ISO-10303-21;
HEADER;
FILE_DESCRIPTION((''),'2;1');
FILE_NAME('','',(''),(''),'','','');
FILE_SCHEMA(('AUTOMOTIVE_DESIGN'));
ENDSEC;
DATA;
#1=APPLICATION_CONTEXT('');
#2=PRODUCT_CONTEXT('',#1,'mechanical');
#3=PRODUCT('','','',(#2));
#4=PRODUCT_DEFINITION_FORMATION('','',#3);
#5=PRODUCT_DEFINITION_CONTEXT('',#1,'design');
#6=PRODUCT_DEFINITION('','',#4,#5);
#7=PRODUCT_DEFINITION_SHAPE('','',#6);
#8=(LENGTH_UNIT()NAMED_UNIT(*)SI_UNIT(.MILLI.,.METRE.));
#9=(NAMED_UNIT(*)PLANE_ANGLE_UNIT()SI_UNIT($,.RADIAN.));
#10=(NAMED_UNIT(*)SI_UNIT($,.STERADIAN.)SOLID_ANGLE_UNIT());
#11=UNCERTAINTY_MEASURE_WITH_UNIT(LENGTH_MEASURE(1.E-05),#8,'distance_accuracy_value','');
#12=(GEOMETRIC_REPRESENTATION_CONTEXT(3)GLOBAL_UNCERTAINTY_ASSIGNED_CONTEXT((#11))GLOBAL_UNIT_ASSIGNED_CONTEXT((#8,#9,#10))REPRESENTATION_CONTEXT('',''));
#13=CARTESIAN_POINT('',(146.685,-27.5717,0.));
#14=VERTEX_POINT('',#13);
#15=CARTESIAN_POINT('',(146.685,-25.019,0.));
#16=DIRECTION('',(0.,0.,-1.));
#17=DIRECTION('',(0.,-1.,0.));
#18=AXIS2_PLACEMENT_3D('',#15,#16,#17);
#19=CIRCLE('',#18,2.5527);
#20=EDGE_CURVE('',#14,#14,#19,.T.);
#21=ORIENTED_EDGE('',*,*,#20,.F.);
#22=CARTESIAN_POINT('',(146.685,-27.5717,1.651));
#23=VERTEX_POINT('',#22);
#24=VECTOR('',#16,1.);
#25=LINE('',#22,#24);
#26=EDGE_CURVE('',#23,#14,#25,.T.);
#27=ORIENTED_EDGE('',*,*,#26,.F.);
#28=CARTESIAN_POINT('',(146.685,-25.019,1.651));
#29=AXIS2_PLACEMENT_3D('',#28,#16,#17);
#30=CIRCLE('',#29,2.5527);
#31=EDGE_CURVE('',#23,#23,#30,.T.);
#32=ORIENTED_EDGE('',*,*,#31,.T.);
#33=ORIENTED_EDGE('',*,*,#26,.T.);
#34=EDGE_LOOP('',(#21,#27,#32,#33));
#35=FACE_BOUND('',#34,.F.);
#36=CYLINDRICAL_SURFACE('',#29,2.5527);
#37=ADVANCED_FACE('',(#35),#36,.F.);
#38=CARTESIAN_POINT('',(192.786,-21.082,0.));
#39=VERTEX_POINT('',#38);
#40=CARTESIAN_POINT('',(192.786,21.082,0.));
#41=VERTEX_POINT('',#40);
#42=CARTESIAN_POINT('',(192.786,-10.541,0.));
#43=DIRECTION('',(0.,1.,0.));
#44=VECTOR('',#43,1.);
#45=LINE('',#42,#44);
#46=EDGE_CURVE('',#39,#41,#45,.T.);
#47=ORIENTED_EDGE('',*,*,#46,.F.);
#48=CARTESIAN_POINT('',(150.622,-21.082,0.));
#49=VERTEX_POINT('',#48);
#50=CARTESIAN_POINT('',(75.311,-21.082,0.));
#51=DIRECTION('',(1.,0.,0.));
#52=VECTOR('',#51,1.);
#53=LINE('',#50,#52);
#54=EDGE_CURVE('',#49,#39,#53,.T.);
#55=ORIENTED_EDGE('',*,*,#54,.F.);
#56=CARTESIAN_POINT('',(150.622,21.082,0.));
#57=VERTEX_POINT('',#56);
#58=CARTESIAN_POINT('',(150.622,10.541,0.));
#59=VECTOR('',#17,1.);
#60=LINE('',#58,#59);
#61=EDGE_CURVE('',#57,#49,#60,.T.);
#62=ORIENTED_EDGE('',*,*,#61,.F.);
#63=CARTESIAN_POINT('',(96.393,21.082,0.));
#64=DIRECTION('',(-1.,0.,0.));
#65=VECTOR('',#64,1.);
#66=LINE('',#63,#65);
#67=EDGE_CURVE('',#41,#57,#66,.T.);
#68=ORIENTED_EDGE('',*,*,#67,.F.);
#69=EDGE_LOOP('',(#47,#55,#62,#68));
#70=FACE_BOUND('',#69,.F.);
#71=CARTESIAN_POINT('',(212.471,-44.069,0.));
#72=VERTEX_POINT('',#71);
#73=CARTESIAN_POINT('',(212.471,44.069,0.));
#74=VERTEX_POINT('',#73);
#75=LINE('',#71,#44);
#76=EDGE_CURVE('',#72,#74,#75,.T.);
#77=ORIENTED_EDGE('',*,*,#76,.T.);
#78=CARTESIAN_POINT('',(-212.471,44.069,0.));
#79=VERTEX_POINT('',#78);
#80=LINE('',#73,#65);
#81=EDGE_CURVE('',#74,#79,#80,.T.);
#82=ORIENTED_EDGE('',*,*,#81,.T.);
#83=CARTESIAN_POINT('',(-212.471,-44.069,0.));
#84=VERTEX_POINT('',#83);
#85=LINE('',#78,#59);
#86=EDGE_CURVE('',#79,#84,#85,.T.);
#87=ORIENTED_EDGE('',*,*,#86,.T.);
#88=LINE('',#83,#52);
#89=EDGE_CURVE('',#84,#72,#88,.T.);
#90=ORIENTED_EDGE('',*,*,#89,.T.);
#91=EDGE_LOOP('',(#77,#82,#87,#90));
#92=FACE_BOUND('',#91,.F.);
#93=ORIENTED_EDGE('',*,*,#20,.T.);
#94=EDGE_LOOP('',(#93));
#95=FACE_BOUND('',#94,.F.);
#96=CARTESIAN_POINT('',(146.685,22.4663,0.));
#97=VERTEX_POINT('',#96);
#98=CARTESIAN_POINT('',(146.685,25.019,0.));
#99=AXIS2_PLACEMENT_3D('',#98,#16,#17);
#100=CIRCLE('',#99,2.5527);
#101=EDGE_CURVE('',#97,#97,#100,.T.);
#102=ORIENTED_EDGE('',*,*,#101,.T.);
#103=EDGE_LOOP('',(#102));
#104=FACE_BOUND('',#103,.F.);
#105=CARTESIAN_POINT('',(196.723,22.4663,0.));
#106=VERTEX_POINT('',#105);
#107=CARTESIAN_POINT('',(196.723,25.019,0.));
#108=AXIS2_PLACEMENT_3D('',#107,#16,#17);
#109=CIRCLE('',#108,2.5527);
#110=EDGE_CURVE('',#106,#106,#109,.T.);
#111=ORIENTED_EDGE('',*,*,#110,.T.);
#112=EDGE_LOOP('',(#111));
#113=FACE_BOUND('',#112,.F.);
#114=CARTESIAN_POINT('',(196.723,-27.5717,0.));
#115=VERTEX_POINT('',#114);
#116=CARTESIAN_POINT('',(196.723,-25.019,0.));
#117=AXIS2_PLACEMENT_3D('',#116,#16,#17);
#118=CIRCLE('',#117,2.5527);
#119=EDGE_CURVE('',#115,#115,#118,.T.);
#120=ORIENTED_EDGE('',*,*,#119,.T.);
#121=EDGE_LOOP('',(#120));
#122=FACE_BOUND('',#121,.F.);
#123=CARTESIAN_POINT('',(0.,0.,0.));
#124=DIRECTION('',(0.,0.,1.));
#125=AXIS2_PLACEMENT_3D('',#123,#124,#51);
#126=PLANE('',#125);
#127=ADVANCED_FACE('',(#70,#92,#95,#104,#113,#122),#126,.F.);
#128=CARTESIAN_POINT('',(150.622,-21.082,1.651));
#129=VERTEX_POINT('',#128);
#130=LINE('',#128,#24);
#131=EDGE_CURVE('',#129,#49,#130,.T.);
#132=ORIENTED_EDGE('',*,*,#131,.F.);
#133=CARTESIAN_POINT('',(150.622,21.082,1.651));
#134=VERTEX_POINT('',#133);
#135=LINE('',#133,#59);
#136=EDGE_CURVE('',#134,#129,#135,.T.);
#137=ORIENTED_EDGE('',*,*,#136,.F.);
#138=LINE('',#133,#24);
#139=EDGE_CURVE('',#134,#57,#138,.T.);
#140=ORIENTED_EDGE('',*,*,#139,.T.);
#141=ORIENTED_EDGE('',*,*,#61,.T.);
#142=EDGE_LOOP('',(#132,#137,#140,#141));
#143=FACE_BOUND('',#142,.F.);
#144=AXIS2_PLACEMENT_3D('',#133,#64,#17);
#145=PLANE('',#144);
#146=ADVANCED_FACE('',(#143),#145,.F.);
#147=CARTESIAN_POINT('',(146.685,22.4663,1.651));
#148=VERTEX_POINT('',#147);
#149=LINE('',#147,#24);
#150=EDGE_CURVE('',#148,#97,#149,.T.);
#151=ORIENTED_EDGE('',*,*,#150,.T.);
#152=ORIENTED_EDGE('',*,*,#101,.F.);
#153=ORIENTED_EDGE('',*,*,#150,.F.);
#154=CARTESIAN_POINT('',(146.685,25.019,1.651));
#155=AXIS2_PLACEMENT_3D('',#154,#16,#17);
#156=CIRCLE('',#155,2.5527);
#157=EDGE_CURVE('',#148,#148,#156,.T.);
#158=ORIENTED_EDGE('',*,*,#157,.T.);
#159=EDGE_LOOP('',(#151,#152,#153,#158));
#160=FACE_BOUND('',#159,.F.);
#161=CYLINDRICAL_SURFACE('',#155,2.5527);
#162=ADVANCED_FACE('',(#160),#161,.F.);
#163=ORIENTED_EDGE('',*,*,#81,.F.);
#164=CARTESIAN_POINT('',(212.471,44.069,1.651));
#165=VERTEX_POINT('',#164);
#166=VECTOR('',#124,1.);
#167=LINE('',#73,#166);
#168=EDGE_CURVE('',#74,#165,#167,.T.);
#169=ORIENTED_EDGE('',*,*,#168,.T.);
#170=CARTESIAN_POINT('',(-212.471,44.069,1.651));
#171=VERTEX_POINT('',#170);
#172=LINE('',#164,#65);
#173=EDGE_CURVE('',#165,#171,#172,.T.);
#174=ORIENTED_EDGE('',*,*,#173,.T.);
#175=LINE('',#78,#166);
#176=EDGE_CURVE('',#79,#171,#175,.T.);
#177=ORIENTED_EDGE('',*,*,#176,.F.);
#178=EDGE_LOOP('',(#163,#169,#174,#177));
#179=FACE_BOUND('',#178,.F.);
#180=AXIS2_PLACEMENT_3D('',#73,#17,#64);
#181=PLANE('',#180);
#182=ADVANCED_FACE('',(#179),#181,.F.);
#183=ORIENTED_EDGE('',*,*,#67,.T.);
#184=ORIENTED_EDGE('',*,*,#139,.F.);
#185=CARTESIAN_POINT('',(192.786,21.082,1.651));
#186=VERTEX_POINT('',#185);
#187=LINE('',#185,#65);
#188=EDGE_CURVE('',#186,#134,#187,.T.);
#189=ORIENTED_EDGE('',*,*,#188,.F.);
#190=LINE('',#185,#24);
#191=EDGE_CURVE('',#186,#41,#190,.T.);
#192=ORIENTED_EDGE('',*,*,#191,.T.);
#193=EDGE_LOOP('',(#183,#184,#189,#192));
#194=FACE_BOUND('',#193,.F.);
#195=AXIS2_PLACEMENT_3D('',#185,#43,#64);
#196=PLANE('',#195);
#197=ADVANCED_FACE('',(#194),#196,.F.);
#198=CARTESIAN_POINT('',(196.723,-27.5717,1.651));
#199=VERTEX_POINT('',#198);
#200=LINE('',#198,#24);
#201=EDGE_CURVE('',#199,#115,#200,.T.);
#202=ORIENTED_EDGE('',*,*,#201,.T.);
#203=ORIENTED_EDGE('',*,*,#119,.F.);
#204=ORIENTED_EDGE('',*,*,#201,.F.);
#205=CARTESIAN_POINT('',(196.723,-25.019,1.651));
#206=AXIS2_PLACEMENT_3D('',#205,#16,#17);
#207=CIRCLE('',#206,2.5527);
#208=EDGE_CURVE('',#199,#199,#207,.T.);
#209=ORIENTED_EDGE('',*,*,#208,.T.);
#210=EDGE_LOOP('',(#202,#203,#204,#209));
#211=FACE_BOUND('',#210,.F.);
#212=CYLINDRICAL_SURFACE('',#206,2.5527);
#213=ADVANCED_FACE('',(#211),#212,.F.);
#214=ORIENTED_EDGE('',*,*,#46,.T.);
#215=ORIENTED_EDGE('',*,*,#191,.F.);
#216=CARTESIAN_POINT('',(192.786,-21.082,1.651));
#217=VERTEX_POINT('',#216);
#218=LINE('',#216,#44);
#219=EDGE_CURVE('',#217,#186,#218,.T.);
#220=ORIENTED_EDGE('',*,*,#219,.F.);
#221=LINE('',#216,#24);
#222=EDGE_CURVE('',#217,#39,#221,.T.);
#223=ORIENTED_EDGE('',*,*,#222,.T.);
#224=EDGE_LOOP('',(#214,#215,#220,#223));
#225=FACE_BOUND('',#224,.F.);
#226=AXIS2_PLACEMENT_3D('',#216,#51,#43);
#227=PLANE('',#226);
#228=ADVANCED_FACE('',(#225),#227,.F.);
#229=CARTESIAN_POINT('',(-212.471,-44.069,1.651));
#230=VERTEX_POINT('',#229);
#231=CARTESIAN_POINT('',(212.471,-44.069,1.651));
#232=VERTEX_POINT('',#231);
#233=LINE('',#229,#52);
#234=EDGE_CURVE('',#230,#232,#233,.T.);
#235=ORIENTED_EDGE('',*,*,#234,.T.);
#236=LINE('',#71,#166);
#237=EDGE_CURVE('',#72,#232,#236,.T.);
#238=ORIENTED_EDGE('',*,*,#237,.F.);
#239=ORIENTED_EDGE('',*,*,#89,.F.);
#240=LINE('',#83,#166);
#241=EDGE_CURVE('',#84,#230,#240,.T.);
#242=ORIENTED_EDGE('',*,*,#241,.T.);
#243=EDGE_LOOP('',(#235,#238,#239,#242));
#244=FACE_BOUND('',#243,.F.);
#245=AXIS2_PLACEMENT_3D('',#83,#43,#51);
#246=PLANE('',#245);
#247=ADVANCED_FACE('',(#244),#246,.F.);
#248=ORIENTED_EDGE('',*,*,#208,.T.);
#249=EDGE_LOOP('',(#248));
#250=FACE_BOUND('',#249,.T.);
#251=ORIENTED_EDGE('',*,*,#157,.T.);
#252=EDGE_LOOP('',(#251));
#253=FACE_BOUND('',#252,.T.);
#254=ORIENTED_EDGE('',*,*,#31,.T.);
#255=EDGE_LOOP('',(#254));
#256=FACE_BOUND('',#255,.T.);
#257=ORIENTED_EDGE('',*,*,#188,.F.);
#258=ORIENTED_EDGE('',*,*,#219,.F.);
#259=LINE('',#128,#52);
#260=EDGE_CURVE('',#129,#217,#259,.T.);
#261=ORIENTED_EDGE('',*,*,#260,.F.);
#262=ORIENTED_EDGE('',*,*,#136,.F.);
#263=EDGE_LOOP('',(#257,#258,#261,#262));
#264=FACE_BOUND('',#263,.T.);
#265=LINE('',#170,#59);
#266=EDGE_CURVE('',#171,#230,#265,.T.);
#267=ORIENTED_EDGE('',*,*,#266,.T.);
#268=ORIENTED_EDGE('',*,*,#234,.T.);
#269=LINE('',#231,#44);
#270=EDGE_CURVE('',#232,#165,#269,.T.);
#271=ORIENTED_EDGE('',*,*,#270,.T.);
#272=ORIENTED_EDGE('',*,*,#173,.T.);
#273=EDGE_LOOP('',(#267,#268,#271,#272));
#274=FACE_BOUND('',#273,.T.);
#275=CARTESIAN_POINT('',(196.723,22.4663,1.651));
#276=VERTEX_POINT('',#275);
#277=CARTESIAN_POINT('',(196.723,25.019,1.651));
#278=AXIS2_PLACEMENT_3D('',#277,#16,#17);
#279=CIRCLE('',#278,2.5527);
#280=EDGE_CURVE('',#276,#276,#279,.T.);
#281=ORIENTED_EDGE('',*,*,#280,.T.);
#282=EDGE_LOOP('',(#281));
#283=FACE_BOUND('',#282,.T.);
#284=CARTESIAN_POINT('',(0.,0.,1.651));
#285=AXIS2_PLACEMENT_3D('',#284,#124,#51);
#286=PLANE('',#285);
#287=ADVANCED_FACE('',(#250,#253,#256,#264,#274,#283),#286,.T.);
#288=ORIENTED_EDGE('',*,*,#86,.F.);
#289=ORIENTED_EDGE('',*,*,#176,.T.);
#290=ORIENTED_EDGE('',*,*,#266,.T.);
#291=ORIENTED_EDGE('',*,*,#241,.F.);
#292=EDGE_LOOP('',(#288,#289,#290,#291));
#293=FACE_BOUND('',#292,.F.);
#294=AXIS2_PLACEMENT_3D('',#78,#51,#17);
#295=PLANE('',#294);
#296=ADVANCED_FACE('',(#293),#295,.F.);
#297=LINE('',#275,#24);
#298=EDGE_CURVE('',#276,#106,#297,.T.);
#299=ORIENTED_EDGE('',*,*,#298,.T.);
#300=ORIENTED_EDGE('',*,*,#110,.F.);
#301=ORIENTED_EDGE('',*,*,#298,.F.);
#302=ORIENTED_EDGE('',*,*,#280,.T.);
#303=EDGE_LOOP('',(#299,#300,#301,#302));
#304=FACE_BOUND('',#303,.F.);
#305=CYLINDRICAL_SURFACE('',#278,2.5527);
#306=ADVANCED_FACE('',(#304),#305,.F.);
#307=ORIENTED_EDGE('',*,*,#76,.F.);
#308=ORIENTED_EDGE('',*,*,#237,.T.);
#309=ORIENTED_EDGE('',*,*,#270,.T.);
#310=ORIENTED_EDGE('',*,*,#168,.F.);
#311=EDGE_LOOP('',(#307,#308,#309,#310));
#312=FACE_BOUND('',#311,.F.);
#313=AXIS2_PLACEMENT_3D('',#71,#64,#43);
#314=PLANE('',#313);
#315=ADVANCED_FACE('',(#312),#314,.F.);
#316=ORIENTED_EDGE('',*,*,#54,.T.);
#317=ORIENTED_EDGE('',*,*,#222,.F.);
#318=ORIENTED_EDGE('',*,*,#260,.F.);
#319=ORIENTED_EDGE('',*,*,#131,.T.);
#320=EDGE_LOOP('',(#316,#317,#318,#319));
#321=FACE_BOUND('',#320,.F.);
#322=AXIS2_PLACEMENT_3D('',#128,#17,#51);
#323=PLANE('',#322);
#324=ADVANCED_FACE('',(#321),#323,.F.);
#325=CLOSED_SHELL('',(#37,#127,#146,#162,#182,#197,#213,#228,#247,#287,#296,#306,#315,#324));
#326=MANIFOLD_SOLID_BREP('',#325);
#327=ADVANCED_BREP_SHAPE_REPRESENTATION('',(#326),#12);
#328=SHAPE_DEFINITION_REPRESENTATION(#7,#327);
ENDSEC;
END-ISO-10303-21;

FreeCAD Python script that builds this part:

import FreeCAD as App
import Part
import Sketcher
from FreeCAD import Vector
Q = App.Units.Quantity


def add_polygon(sketch, points):
    """Adds a closed chain of lines whose ends are joined by coincident constraints."""
    first, n = sketch.GeometryCount, len(points)
    for a, b in zip(points, points[1:] + points[:1]):
        sketch.addGeometry(Part.LineSegment(App.Vector(*a, 0), App.Vector(*b, 0)), False)
    for i in range(n):
        sketch.addConstraint(Sketcher.Constraint("Coincident", first + i, 2, first + (i + 1) % n, 1))

doc = App.newDocument("Part")
body = doc.addObject("PartDesign::Body", "Body")

# Sketch on XY plane
sketch1 = body.newObject("Sketcher::SketchObject", "Sketch")
sketch1.AttachmentSupport = (doc.getObject("XY_Plane"), [""])
sketch1.MapMode = "FlatFace"
add_polygon(sketch1, [(-212, 44), (-212, -44), (212, -44), (212, 44)])  # lines 0-3
sketch1.addConstraint([
    Sketcher.Constraint("Vertical", 0),
    Sketcher.Constraint("Horizontal", 1),
    Sketcher.Constraint("Vertical", 2),
    Sketcher.Constraint("Horizontal", 3),
    Sketcher.Constraint("Symmetric", 0, 2, 2, 2, -1, 1),
    Sketcher.Constraint("DistanceX", 1, 1, 1, 2, Q("16.73 in")),
    Sketcher.Constraint("DistanceY", 0, 2, 0, 1, Q("3.47 in")),
])
pad1 = body.newObject("PartDesign::Pad", "Pad")
pad1.Profile = sketch1
pad1.Length = Q("0.065 in")

# Sketch on XY plane
sketch2 = body.newObject("Sketcher::SketchObject", "Sketch001")
sketch2.AttachmentSupport = (doc.getObject("XY_Plane"), [""])
sketch2.MapMode = "FlatFace"
sketch2.AttachmentOffset = App.Placement(Vector(0, 0, 0.065 * 25.4), App.Rotation())
sketch2.addGeometry([
    Part.Circle(Vector(196.7, 25, 0), Vector(0, 0, 1), 2.6),
    Part.Circle(Vector(146.7, 25, 0), Vector(0, 0, 1), 2.6),
    Part.Circle(Vector(196.7, -25, 0), Vector(0, 0, 1), 2.6),
    Part.Circle(Vector(146.7, -25, 0), Vector(0, 0, 1), 2.6),
], False)
sketch2.addConstraint([
    Sketcher.Constraint("Equal", 0, 1),
    Sketcher.Constraint("Equal", 1, 2),
    Sketcher.Constraint("Equal", 2, 3),
    Sketcher.Constraint("Symmetric", 0, 3, 2, 3, -1),
    Sketcher.Constraint("Symmetric", 1, 3, 3, 3, -1),
    Sketcher.Constraint("Horizontal", 0, 3, 1, 3),
    Sketcher.Constraint("Diameter", 0, Q("0.201 in")),
    Sketcher.Constraint("DistanceX", 1, 3, 0, 3, Q("1.97 in")),
    Sketcher.Constraint("DistanceY", 2, 3, 0, 3, Q("1.97 in")),
    Sketcher.Constraint("DistanceX", -1, 1, 0, 3, Q("7.745 in")),
])
doc.recompute()
hole = body.newObject("PartDesign::Hole", "Hole")
hole.Profile = sketch2
hole.ThreadType = "None"
hole.Diameter = Q("0.201 in")
hole.DepthType = "ThroughAll"

# Sketch on XY plane
sketch3 = body.newObject("Sketcher::SketchObject", "Sketch002")
sketch3.AttachmentSupport = (doc.getObject("XY_Plane"), [""])
sketch3.MapMode = "FlatFace"
sketch3.AttachmentOffset = App.Placement(Vector(0, 0, 0.065 * 25.4), App.Rotation())
add_polygon(sketch3, [(151, 21), (151, -21), (193, -21), (193, 21)])  # lines 0-3
sketch3.addConstraint([
    Sketcher.Constraint("Vertical", 0),
    Sketcher.Constraint("Horizontal", 1),
    Sketcher.Constraint("Vertical", 2),
    Sketcher.Constraint("Horizontal", 3),
    Sketcher.Constraint("Equal", 3, 0),
    Sketcher.Constraint("DistanceX", 1, 1, 1, 2, Q("1.66 in")),
    Sketcher.Constraint("DistanceX", -1, 1, 0, 2, Q("5.93 in")),
    Sketcher.Constraint("DistanceY", 0, 2, -1, 1, Q("0.83 in")),
])
pocket1 = body.newObject("PartDesign::Pocket", "Pocket")
pocket1.Profile = sketch3
pocket1.Type = "ThroughAll"

doc.recompute()
